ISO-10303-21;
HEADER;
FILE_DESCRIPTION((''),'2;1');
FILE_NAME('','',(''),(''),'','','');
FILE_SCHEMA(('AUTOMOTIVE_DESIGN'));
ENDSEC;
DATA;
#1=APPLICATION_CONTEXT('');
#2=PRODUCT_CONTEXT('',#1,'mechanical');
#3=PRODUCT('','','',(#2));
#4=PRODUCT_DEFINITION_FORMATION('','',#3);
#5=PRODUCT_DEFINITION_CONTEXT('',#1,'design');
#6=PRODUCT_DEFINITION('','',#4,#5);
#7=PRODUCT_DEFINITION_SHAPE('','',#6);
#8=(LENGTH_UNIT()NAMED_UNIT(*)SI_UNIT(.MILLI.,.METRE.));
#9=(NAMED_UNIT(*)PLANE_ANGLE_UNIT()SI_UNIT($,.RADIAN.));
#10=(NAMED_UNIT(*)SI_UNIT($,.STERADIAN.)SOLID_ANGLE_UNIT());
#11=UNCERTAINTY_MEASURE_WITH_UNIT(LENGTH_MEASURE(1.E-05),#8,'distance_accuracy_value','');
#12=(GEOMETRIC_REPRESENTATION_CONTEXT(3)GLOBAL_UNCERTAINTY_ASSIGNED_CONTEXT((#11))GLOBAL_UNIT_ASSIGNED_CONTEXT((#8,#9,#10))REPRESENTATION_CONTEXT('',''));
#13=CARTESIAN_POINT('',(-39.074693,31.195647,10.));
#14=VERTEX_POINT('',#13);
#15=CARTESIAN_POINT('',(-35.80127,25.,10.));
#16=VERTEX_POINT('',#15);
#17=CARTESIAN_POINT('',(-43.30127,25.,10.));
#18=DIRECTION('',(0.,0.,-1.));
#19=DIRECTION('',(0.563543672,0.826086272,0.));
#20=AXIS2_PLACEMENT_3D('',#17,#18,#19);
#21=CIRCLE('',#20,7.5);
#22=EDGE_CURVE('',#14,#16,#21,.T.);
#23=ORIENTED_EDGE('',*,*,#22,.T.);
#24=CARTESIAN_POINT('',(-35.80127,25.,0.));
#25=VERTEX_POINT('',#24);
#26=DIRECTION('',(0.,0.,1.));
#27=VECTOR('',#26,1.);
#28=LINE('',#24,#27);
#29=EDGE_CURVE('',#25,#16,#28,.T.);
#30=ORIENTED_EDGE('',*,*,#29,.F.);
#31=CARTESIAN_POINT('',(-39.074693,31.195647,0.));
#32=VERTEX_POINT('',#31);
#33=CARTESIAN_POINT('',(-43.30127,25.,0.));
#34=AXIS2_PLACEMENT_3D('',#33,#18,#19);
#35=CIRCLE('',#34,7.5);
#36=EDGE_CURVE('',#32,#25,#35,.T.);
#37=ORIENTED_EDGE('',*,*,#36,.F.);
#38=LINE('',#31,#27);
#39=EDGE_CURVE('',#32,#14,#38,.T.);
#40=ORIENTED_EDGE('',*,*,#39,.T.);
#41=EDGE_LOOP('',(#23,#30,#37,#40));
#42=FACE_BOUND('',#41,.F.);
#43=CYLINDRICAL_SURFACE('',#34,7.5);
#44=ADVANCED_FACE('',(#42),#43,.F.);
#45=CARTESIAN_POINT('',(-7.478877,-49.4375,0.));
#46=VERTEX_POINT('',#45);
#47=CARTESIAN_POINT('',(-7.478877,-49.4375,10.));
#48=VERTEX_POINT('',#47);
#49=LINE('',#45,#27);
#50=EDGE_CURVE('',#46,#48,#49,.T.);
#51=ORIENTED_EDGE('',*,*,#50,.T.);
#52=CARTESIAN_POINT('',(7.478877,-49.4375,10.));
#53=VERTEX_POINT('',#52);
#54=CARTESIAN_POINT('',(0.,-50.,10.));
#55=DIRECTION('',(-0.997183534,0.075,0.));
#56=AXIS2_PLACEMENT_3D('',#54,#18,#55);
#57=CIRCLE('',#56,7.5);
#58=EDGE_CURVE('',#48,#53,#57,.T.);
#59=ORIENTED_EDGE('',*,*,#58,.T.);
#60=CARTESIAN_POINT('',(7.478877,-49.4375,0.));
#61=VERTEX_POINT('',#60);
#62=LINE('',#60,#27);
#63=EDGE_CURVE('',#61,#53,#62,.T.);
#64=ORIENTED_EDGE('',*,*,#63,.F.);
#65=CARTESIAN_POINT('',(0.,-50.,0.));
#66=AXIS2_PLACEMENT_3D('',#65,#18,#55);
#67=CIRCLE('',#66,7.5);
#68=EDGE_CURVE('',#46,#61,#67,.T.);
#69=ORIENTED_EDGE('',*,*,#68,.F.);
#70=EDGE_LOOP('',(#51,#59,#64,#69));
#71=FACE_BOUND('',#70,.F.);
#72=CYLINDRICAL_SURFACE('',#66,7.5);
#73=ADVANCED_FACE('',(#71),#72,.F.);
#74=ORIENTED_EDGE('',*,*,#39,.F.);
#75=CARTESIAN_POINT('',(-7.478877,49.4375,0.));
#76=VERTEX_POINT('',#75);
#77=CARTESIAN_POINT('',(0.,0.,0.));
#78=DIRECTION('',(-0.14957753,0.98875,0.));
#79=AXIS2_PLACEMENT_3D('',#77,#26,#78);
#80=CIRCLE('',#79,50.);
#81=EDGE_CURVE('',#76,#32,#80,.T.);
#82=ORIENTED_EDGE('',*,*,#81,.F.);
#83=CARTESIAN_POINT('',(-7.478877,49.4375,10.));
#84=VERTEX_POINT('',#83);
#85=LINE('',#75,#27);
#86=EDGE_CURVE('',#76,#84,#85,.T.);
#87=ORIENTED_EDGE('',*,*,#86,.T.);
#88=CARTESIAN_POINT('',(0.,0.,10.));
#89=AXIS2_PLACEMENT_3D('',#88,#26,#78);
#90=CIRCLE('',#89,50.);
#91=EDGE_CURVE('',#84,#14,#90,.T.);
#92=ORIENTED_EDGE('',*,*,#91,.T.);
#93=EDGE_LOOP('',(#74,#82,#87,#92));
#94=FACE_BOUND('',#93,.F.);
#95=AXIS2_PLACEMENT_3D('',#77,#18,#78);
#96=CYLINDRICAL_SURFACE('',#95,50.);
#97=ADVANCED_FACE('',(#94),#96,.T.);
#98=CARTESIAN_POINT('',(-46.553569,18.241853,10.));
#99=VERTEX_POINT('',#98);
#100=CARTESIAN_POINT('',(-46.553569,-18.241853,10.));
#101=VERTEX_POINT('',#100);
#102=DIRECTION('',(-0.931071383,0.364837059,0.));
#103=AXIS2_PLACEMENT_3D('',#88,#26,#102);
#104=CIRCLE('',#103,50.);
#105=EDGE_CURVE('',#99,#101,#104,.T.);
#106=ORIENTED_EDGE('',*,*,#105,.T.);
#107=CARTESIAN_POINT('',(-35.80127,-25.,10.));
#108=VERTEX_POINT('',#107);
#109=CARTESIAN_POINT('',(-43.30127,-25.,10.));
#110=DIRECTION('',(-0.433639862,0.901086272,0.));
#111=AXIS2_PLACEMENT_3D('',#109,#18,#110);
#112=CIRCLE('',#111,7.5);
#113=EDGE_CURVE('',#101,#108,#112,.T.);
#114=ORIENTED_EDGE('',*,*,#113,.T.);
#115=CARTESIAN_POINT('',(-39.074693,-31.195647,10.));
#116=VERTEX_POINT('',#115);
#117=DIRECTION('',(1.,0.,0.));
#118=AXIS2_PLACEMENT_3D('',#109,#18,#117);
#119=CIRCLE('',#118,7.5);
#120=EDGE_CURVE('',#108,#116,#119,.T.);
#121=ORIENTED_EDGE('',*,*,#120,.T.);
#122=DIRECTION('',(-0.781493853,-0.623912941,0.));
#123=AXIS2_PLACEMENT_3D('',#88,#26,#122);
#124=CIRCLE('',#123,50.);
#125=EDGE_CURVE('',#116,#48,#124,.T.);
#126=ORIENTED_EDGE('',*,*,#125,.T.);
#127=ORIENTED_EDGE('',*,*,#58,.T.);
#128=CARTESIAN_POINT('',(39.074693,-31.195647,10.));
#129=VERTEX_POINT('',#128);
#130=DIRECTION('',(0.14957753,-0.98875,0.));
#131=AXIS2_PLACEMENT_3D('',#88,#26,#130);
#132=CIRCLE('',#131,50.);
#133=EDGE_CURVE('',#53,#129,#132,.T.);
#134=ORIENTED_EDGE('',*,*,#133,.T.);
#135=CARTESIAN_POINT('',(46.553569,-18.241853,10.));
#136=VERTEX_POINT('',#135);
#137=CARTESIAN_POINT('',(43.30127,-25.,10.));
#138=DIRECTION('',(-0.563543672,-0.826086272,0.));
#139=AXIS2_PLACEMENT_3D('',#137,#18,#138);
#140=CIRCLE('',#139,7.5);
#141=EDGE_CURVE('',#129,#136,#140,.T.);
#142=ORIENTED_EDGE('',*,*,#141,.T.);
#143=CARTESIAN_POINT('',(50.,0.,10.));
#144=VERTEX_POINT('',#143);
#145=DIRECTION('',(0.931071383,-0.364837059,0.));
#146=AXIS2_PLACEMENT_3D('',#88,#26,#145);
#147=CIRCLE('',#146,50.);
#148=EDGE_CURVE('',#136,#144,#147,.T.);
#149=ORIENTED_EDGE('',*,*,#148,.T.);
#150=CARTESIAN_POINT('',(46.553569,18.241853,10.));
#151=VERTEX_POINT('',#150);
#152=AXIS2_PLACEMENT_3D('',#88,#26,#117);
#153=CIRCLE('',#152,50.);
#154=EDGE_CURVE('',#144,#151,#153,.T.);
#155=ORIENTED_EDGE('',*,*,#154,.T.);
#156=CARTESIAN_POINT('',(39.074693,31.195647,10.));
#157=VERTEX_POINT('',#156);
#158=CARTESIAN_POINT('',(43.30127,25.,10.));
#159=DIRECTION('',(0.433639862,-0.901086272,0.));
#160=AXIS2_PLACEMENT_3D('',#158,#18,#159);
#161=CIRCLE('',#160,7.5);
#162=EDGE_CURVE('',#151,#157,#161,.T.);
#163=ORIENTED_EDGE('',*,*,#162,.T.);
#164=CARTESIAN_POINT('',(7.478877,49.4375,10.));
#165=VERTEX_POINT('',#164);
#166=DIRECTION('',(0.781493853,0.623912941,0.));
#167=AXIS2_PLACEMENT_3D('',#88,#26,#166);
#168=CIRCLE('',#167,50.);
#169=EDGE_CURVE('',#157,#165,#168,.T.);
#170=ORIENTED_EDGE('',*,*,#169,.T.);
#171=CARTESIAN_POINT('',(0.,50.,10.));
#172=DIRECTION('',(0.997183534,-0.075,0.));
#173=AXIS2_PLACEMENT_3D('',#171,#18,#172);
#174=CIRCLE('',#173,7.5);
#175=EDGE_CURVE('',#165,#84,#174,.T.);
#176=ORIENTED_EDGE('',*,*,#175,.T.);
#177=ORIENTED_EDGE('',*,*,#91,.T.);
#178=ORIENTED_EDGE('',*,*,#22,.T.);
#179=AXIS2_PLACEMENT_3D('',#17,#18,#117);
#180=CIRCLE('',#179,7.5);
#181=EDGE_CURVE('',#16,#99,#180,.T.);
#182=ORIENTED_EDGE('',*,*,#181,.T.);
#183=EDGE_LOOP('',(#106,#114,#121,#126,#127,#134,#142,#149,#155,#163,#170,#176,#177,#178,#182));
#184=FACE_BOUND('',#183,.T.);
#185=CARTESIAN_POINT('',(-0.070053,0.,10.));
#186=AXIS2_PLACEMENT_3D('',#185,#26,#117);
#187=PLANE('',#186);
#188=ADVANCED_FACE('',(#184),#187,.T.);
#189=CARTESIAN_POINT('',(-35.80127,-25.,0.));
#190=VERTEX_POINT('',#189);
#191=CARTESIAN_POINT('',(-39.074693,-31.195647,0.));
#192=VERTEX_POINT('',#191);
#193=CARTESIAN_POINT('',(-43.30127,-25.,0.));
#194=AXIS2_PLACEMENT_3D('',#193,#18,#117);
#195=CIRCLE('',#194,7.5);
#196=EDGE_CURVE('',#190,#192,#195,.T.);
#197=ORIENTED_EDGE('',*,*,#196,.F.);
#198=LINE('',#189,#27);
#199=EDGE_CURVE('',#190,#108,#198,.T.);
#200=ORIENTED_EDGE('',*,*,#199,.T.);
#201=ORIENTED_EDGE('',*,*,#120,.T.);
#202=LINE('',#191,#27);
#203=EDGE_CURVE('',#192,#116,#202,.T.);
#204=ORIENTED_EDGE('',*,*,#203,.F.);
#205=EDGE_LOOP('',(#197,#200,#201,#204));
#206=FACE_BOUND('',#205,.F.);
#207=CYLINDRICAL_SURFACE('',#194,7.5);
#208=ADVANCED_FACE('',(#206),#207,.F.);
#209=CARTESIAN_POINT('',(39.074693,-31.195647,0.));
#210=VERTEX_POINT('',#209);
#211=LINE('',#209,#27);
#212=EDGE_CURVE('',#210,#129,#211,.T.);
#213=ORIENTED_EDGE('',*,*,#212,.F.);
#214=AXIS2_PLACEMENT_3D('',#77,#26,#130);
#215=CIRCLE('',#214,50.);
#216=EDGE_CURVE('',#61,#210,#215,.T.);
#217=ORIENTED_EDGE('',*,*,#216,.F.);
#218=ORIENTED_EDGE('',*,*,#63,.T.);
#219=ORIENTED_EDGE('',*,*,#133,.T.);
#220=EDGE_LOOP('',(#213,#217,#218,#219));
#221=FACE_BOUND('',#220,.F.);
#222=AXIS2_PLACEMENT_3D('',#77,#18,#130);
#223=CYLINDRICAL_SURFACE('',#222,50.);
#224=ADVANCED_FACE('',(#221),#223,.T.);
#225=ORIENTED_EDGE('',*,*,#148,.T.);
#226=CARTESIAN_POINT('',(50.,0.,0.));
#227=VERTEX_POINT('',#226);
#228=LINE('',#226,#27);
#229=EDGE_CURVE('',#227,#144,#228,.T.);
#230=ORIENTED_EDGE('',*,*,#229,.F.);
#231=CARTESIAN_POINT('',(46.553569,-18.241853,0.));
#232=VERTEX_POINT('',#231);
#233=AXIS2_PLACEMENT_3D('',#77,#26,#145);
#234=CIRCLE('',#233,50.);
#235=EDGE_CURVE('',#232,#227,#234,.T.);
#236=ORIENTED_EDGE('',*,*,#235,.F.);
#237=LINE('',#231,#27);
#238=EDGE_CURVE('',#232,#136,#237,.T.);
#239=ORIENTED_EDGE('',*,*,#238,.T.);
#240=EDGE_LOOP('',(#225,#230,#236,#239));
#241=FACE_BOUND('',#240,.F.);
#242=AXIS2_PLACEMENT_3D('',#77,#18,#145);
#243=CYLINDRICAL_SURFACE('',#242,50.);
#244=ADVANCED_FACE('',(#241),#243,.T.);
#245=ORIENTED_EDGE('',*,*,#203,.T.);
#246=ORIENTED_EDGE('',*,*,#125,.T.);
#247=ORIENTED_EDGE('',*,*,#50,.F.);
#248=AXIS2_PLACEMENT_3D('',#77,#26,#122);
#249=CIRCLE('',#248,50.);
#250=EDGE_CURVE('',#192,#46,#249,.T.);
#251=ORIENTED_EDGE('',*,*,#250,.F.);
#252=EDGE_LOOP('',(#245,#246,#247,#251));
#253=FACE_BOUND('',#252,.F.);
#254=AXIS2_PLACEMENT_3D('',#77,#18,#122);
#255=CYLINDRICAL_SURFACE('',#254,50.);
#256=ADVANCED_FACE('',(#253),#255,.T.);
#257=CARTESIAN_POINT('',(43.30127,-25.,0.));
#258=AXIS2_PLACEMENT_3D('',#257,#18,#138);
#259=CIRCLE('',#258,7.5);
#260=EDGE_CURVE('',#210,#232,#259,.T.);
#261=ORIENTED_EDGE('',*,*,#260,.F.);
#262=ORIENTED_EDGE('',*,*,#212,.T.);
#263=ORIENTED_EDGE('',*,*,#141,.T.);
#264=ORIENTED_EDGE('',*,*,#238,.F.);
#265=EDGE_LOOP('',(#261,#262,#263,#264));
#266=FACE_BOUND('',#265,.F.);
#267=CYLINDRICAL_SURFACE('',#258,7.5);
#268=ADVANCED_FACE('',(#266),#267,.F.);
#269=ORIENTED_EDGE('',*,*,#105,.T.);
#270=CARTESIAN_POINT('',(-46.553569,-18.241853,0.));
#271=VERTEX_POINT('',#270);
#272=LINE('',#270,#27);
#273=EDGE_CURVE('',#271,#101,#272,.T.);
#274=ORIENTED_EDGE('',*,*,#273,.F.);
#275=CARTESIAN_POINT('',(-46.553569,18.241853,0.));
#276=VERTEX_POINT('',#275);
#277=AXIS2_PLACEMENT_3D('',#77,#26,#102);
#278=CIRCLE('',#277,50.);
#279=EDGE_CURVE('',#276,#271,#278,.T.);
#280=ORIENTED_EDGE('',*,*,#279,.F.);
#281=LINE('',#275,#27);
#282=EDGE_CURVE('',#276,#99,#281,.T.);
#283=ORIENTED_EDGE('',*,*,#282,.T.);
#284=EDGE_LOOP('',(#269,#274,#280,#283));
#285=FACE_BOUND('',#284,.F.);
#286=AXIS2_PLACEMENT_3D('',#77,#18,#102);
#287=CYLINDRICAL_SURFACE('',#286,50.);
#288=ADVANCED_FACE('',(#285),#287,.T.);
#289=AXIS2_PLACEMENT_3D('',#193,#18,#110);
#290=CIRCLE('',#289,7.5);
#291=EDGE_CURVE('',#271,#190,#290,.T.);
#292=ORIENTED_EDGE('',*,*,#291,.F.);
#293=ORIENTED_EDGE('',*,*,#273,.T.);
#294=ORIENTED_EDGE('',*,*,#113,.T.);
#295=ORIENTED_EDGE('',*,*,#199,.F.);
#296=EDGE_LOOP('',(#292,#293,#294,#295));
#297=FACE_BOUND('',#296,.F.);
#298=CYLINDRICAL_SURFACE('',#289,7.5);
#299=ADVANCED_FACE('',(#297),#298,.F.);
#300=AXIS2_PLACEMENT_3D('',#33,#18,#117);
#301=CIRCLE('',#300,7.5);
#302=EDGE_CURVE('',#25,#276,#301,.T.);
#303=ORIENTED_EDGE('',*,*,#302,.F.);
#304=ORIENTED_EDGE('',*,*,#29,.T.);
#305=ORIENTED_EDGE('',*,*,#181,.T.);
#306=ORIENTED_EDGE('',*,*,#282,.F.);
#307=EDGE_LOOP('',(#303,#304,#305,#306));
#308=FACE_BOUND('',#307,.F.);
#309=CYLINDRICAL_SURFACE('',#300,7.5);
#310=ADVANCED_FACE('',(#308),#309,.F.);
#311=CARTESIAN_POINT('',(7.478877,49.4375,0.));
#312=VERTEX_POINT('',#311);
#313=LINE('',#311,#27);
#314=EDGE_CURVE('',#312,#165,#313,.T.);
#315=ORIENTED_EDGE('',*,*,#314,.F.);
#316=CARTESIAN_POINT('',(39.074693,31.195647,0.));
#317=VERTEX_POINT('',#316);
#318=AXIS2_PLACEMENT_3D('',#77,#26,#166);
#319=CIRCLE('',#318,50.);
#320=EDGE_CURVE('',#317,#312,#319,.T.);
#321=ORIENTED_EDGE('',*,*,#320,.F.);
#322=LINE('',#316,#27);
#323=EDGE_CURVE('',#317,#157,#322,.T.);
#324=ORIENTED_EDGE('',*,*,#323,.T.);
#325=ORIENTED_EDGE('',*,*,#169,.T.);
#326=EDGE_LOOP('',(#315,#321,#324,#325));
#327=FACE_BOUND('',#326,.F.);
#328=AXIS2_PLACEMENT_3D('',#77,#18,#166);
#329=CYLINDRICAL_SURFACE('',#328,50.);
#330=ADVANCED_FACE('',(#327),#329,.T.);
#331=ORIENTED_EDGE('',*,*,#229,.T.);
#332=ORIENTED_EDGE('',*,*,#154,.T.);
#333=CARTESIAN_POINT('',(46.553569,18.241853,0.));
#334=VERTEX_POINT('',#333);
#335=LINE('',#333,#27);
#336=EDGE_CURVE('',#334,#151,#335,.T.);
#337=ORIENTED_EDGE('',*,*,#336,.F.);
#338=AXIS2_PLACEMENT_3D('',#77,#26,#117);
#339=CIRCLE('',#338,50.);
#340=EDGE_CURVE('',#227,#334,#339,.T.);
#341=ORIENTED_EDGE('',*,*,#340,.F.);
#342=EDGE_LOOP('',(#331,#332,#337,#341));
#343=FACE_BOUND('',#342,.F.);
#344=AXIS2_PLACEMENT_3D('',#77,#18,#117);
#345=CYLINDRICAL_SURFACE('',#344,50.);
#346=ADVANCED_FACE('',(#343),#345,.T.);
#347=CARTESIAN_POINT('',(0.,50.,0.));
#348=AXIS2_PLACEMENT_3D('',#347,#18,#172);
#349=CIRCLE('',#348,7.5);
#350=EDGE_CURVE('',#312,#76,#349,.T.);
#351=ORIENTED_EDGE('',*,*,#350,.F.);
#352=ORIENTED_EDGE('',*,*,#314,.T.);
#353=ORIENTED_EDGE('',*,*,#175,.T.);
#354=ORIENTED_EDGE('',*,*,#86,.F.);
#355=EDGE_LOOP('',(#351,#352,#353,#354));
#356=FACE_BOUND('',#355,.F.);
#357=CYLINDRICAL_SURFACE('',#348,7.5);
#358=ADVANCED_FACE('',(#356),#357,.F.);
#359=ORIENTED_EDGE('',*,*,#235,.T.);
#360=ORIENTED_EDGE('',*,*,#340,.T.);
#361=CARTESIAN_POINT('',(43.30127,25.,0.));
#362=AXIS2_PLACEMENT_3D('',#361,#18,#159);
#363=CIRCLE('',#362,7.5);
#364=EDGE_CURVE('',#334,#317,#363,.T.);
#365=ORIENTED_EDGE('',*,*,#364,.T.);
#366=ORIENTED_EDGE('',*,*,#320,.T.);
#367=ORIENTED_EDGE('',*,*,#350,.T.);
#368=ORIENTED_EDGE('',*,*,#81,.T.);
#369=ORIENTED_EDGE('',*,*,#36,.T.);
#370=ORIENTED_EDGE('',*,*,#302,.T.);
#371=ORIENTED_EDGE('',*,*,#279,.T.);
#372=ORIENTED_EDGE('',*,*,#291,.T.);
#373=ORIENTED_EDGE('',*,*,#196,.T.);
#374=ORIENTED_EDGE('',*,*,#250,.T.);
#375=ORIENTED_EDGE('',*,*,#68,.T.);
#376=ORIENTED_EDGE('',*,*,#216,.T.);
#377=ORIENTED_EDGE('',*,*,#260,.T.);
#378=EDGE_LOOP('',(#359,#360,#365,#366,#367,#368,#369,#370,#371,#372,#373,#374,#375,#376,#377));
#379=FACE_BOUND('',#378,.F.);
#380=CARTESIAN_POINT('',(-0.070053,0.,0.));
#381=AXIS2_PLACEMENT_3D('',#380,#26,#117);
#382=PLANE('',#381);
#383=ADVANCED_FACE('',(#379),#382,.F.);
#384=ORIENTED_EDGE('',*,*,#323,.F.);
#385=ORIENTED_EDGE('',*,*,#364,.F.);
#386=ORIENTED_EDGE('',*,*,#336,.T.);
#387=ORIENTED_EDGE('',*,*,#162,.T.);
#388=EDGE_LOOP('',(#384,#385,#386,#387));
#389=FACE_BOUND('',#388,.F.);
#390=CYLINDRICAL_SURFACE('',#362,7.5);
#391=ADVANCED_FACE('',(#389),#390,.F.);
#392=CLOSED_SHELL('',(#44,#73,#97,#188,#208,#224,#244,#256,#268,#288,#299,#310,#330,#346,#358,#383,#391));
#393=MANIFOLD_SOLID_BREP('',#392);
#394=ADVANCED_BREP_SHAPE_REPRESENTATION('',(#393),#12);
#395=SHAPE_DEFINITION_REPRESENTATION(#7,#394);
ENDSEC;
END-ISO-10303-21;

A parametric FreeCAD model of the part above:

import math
import FreeCAD as App
import Part
import Sketcher

doc = App.newDocument("Part")
body = doc.addObject("PartDesign::Body", "Body")

# Sketch on XY plane
sketch1 = body.newObject("Sketcher::SketchObject", "Sketch")
sketch1.AttachmentSupport = (doc.getObject("XY_Plane"), [""])
sketch1.MapMode = "FlatFace"
sketch1.addGeometry([
    Part.ArcOfCircle(Part.Circle(App.Vector(0, 0, 0), App.Vector(0, 0, 1), 50), math.radians(-21), math.radians(0)),  # 0
    Part.ArcOfCircle(Part.Circle(App.Vector(0, 0, 0), App.Vector(0, 0, 1), 50), math.radians(0), math.radians(21)),  # 1
    Part.ArcOfCircle(Part.Circle(App.Vector(43, 25, 0), App.Vector(0, 0, 1), 8), math.radians(124), math.radians(296)),  # 2
    Part.ArcOfCircle(Part.Circle(App.Vector(0, 0, 0), App.Vector(0, 0, 1), 50), math.radians(39), math.radians(81)),  # 3
    Part.ArcOfCircle(Part.Circle(App.Vector(0, 50, 0), App.Vector(0, 0, 1), 8), math.radians(-176), math.radians(-4)),  # 4
    Part.ArcOfCircle(Part.Circle(App.Vector(0, 0, 0), App.Vector(0, 0, 1), 50), math.radians(99), math.radians(141)),  # 5
    Part.ArcOfCircle(Part.Circle(App.Vector(-43, 25, 0), App.Vector(0, 0, 1), 8), math.radians(0), math.radians(56)),  # 6
    Part.ArcOfCircle(Part.Circle(App.Vector(-43, 25, 0), App.Vector(0, 0, 1), 8), math.radians(-116), math.radians(0)),  # 7
    Part.ArcOfCircle(Part.Circle(App.Vector(0, 0, 0), App.Vector(0, 0, 1), 50), math.radians(159), math.radians(201)),  # 8
    Part.ArcOfCircle(Part.Circle(App.Vector(-43, -25, 0), App.Vector(0, 0, 1), 8), math.radians(0), math.radians(116)),  # 9
    Part.ArcOfCircle(Part.Circle(App.Vector(-43, -25, 0), App.Vector(0, 0, 1), 8), math.radians(-56), math.radians(0)),  # 10
    Part.ArcOfCircle(Part.Circle(App.Vector(0, 0, 0), App.Vector(0, 0, 1), 50), math.radians(-141), math.radians(-99)),  # 11
    Part.ArcOfCircle(Part.Circle(App.Vector(0, -50, 0), App.Vector(0, 0, 1), 8), math.radians(4), math.radians(176)),  # 12
    Part.ArcOfCircle(Part.Circle(App.Vector(0, 0, 0), App.Vector(0, 0, 1), 50), math.radians(-81), math.radians(-39)),  # 13
    Part.ArcOfCircle(Part.Circle(App.Vector(43, -25, 0), App.Vector(0, 0, 1), 8), math.radians(64), math.radians(236)),  # 14
], False)
sketch1.addConstraint([
    Sketcher.Constraint("Tangent", 0, 2, 1, 1),
    Sketcher.Constraint("Coincident", 1, 2, 2, 2),
    Sketcher.Constraint("Coincident", 2, 1, 3, 1),
    Sketcher.Constraint("Coincident", 3, 2, 4, 2),
    Sketcher.Constraint("Coincident", 4, 1, 5, 1),
    Sketcher.Constraint("Coincident", 5, 2, 6, 2),
    Sketcher.Constraint("Tangent", 6, 1, 7, 2),
    Sketcher.Constraint("Coincident", 7, 1, 8, 1),
    Sketcher.Constraint("Coincident", 8, 2, 9, 2),
    Sketcher.Constraint("Tangent", 9, 1, 10, 2),
    Sketcher.Constraint("Coincident", 10, 1, 11, 1),
    Sketcher.Constraint("Coincident", 11, 2, 12, 2),
    Sketcher.Constraint("Coincident", 12, 1, 13, 1),
    Sketcher.Constraint("Coincident", 13, 2, 14, 2),
    Sketcher.Constraint("Coincident", 14, 1, 0, 1),
    Sketcher.Constraint("Coincident", 0, 3, -1, 1),
    Sketcher.Constraint("Coincident", 3, 3, -1, 1),
    Sketcher.Constraint("Coincident", 5, 3, -1, 1),
    Sketcher.Constraint("Coincident", 8, 3, -1, 1),
    Sketcher.Constraint("Coincident", 11, 3, -1, 1),
    Sketcher.Constraint("Coincident", 13, 3, -1, 1),
    Sketcher.Constraint("Equal", 0, 1),
    Sketcher.Constraint("Equal", 1, 3),
    Sketcher.Constraint("Equal", 2, 4),
    Sketcher.Constraint("Equal", 3, 5),
    Sketcher.Constraint("Equal", 4, 6),
    Sketcher.Constraint("Equal", 6, 7),
    Sketcher.Constraint("Equal", 5, 8),
    Sketcher.Constraint("Equal", 7, 9),
    Sketcher.Constraint("Equal", 9, 10),
    Sketcher.Constraint("Equal", 8, 11),
    Sketcher.Constraint("Equal", 10, 12),
    Sketcher.Constraint("Equal", 11, 13),
    Sketcher.Constraint("Equal", 12, 14),
    Sketcher.Constraint("Symmetric", 2, 3, 9, 3, -1, 1),
    Sketcher.Constraint("Symmetric", 4, 3, 12, 3, -1, 1),
    Sketcher.Constraint("Symmetric", 6, 3, 14, 3, -1, 1),
    Sketcher.Constraint("Symmetric", 2, 3, 6, 3, -2),
    Sketcher.Constraint("PointOnObject", 4, 3, -2),
    Sketcher.Constraint("PointOnObject", 0, 2, -1),
    Sketcher.Constraint("Horizontal", 7, 3, 6, 1),
    Sketcher.Constraint("Horizontal", 14, 3, 9, 1),
    Sketcher.Constraint("Radius", 0, 50.0),
    Sketcher.Constraint("Radius", 2, 7.5),
    Sketcher.Constraint("DistanceY", -1, 1, 2, 3, 25.0),
    Sketcher.Constraint("DistanceY", -1, 1, 4, 3, 50.0),
    Sketcher.Constraint("DistanceX", 2, 3, 1, 2, 3.252299),
])
pad1 = body.newObject("PartDesign::Pad", "Pad")
pad1.Profile = sketch1
pad1.Length = 10

doc.recompute()
